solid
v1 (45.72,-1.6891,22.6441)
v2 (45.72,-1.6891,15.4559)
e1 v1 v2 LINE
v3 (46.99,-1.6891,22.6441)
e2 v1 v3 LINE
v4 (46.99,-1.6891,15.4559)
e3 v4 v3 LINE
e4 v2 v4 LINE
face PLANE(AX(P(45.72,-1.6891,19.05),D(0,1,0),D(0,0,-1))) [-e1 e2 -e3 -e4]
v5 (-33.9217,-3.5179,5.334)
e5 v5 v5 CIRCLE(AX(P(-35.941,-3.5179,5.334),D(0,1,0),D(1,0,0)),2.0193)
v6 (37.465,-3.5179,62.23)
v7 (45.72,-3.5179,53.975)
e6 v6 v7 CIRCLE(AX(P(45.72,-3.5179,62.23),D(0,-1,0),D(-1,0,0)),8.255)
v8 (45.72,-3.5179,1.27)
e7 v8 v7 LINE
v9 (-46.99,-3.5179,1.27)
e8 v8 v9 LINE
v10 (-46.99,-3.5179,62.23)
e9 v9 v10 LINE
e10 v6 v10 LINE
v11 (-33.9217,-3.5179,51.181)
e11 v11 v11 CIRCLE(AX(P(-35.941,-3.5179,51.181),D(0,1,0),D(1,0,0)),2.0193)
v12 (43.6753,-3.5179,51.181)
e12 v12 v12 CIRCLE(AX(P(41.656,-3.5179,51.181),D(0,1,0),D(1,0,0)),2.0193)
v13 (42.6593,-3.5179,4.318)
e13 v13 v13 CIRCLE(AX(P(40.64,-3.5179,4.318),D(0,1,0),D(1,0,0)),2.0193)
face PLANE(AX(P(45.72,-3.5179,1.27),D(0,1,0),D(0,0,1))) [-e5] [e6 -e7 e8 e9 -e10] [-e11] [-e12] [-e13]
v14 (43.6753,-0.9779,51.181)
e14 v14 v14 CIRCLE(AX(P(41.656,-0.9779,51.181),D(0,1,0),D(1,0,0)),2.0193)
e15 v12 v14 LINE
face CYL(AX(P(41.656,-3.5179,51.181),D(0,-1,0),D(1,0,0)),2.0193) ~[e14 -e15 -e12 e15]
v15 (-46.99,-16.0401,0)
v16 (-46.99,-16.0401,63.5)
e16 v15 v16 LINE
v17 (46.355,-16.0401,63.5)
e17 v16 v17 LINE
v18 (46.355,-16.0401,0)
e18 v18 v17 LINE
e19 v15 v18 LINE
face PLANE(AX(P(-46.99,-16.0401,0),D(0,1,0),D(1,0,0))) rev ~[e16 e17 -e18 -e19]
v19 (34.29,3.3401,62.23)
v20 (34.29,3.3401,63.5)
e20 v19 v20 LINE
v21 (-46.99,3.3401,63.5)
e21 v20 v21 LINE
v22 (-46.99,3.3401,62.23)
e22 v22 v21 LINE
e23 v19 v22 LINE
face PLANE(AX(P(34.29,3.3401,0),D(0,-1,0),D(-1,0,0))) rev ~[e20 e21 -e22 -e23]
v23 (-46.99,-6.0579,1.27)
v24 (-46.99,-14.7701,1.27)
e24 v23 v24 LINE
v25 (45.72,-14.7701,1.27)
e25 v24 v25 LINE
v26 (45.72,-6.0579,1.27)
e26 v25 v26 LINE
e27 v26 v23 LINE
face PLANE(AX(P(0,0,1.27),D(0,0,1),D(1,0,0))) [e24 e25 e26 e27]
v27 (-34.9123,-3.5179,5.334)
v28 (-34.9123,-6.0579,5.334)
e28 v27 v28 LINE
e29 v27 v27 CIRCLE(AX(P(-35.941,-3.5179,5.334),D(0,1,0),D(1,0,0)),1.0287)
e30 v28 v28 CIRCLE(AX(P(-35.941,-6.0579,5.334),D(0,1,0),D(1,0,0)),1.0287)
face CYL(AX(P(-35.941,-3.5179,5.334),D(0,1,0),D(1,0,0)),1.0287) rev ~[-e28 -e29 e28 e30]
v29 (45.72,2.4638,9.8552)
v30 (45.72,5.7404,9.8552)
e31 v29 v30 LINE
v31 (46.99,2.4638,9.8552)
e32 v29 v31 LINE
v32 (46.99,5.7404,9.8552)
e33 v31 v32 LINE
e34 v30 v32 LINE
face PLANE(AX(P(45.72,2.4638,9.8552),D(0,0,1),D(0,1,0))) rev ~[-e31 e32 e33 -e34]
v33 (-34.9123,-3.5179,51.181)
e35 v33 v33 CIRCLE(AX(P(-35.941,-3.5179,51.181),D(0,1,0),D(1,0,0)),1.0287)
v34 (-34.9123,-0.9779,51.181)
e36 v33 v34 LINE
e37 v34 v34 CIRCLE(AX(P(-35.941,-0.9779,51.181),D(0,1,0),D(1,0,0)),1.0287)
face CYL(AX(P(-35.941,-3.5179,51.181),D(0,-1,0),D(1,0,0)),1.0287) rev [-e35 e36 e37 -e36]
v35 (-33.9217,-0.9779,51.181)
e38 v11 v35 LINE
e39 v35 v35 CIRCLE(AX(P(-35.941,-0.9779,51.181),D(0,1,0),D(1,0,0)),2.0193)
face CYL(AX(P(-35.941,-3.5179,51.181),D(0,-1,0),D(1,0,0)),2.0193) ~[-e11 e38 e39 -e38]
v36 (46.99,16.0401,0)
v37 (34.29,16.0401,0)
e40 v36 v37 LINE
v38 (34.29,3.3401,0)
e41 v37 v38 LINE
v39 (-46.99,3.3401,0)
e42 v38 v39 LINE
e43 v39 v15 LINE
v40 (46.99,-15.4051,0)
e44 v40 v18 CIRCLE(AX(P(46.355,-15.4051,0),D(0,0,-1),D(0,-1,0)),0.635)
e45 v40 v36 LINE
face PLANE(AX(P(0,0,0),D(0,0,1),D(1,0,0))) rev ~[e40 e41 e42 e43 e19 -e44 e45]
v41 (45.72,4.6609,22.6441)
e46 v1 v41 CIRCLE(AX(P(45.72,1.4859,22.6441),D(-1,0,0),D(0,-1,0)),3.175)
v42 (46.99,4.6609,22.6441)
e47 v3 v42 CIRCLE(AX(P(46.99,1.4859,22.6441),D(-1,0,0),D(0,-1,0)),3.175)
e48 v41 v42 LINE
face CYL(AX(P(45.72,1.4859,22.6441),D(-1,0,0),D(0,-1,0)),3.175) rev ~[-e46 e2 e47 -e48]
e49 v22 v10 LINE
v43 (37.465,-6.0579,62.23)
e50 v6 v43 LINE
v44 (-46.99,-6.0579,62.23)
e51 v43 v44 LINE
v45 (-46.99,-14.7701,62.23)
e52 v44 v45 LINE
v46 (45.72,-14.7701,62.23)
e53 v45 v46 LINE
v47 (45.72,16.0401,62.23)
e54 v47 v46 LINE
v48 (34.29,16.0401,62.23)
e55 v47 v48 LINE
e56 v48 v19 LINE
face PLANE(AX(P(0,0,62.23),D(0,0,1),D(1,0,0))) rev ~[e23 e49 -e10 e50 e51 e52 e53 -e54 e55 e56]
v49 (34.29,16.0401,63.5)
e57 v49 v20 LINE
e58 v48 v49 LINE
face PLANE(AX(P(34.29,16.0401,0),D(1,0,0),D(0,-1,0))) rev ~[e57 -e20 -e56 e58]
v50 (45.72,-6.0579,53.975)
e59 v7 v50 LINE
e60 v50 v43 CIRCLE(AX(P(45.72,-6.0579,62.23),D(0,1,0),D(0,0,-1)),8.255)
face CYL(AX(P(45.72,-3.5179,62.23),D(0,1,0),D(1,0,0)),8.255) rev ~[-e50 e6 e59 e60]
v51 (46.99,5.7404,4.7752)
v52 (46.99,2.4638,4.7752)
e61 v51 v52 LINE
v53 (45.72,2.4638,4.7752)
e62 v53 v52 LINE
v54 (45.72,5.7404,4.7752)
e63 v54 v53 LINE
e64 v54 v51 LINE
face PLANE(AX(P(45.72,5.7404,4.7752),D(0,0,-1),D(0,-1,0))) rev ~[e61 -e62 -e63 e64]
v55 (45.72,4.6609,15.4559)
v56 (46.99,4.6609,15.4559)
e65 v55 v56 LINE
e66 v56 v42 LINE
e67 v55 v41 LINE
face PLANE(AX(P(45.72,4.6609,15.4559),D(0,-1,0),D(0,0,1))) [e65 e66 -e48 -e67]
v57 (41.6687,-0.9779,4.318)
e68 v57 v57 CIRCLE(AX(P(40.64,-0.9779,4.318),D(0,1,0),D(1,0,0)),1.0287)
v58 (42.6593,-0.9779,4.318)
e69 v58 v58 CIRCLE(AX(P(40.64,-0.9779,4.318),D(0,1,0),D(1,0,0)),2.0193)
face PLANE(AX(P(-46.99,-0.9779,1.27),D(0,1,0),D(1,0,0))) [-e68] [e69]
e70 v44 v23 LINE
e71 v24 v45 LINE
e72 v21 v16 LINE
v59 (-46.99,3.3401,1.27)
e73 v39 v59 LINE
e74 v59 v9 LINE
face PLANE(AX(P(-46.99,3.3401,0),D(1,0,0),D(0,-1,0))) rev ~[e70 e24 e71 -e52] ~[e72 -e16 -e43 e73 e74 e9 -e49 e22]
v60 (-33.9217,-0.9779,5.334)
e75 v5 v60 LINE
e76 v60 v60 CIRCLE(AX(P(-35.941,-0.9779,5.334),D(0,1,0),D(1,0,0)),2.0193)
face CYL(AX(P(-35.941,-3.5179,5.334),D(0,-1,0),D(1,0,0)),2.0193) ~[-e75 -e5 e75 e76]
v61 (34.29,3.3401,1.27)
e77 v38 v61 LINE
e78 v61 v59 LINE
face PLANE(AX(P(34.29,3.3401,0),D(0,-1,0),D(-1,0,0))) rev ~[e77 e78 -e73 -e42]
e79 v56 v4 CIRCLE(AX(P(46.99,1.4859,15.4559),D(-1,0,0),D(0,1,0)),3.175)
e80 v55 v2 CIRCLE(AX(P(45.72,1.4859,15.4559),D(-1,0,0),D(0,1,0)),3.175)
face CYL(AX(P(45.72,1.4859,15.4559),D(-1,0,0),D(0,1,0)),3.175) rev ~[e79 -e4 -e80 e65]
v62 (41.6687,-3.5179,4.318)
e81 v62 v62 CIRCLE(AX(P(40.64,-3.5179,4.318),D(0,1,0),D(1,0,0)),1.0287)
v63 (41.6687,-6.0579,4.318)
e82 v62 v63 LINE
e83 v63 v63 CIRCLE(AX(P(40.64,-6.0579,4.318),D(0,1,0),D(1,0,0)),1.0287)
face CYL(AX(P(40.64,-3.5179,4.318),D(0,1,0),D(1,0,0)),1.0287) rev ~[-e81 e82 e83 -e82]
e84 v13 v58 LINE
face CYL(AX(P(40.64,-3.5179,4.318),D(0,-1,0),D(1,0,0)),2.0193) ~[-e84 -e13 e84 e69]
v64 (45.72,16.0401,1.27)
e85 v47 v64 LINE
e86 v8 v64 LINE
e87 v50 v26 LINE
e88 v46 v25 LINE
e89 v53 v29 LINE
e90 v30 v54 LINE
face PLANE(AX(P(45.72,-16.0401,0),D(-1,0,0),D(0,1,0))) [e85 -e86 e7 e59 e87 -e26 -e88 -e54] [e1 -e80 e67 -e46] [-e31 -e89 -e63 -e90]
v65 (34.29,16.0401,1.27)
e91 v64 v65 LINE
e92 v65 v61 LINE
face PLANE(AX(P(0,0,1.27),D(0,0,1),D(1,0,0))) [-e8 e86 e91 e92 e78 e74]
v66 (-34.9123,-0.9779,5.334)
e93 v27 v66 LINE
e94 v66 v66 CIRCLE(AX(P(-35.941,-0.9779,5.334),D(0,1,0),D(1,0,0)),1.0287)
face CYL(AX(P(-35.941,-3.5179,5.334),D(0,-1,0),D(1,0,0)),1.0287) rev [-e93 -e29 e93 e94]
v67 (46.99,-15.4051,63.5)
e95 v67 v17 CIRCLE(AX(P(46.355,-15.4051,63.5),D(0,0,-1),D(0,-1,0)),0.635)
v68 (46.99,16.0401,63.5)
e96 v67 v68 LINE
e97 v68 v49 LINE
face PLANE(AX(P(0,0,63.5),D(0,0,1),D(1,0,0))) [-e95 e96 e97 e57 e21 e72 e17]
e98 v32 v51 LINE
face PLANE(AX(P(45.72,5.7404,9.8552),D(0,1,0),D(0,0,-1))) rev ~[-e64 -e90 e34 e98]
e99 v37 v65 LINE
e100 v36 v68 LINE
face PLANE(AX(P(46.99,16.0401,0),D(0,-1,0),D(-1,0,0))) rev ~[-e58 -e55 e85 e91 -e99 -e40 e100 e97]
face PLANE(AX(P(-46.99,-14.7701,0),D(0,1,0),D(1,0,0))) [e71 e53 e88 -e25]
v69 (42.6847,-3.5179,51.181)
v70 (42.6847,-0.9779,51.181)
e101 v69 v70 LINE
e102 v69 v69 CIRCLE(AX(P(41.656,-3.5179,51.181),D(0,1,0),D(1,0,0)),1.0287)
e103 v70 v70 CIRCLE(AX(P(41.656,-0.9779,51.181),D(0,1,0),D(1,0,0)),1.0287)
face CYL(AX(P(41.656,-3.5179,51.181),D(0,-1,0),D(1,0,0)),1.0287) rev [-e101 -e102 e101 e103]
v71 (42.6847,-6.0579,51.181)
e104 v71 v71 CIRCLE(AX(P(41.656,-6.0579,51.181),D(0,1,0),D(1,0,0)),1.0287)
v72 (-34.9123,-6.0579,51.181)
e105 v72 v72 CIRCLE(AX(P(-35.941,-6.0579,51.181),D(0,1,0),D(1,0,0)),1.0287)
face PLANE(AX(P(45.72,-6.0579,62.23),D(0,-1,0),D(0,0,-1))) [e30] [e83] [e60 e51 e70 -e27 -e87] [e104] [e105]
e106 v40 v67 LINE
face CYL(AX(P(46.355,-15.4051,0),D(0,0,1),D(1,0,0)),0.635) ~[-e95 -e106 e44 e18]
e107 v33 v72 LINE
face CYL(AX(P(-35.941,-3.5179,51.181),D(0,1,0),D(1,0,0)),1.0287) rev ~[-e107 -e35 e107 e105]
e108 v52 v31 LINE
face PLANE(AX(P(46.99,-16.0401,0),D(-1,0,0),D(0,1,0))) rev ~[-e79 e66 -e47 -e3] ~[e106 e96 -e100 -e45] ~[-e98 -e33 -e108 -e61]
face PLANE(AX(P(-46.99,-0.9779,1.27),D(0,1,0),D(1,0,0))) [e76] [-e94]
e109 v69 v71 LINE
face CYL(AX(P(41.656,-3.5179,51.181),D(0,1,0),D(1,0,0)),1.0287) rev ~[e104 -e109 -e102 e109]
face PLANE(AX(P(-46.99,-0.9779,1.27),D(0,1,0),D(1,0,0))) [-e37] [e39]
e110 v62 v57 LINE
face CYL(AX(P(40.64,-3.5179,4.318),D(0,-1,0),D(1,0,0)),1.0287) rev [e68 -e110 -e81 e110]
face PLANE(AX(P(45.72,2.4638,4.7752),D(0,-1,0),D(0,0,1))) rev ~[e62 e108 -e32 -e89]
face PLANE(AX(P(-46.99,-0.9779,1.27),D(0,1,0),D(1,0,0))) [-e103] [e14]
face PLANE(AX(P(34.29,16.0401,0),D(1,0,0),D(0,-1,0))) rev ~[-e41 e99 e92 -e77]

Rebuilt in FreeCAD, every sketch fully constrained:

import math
import FreeCAD as App
import Part
import Sketcher

V = App.Vector
Q = App.Units.Quantity


def edges_at(feature, points):
    """Names of the edges that pass closest to the given points."""
    edges = feature.Shape.Edges
    near = lambda p: min(range(len(edges)), key=lambda i: edges[i].distToShape(Part.Vertex(*p))[0])
    return sorted({f"Edge{near(p) + 1}" for p in points})


def faces_at(feature, points):
    """Names of the faces that lie closest to the given points."""
    faces = feature.Shape.Faces
    near = lambda p: min(range(len(faces)), key=lambda i: faces[i].distToShape(Part.Vertex(*p))[0])
    return sorted({f"Face{near(p) + 1}" for p in points})

doc = App.newDocument("Part")
body = doc.addObject("PartDesign::Body", "Body")

sketch1 = body.newObject("Sketcher::SketchObject", "Sketch")
sketch1.AttachmentSupport = (doc.getObject("XY_Plane"), [""])
sketch1.MapMode = "FlatFace"
sketch1.addGeometry(Part.LineSegment(V(-47, 3, 0), V(-47, -16, 0)), False)
sketch1.addGeometry(Part.LineSegment(V(-47, -16, 0), V(47, -16, 0)), False)
sketch1.addGeometry(Part.LineSegment(V(47, -16, 0), V(47, 16, 0)), False)
sketch1.addGeometry(Part.LineSegment(V(47, 16, 0), V(34, 16, 0)), False)
sketch1.addGeometry(Part.LineSegment(V(34, 16, 0), V(34, 3, 0)), False)
sketch1.addGeometry(Part.LineSegment(V(34, 3, 0), V(-47, 3, 0)), False)
sketch1.addConstraint(Sketcher.Constraint("Coincident", 0, 2, 1, 1))
sketch1.addConstraint(Sketcher.Constraint("Coincident", 1, 2, 2, 1))
sketch1.addConstraint(Sketcher.Constraint("Coincident", 2, 2, 3, 1))
sketch1.addConstraint(Sketcher.Constraint("Coincident", 3, 2, 4, 1))
sketch1.addConstraint(Sketcher.Constraint("Coincident", 4, 2, 5, 1))
sketch1.addConstraint(Sketcher.Constraint("Coincident", 5, 2, 0, 1))
sketch1.addConstraint(Sketcher.Constraint("Vertical", 0))
sketch1.addConstraint(Sketcher.Constraint("Horizontal", 1))
sketch1.addConstraint(Sketcher.Constraint("Vertical", 2))
sketch1.addConstraint(Sketcher.Constraint("Horizontal", 3))
sketch1.addConstraint(Sketcher.Constraint("Vertical", 4))
sketch1.addConstraint(Sketcher.Constraint("Horizontal", 5))
sketch1.addConstraint(Sketcher.Constraint("Symmetric", 0, 2, 2, 2, -1, 1))
sketch1.addConstraint(Sketcher.Constraint("Equal", 3, 4))
sketch1.addConstraint(Sketcher.Constraint("DistanceX", 1, 1, 1, 2, Q("3.7 in")))
sketch1.addConstraint(Sketcher.Constraint("DistanceX", 3, 2, 3, 1, Q("0.5 in")))
sketch1.addConstraint(Sketcher.Constraint("DistanceY", 2, 1, 2, 2, Q("1.263 in")))
pad1 = body.newObject("PartDesign::Pad", "Pad")
pad1.Profile = sketch1
pad1.Length = Q("2.5 in")
doc.recompute()

thickness = body.newObject("PartDesign::Thickness", "Thickness")
thickness.Base = (pad1, faces_at(pad1, [
    (-46.99, -3.12, 21.167),
    (7.197, 3.34, 21.167),
    (34.29, 11.807, 42.333),
    (42.757, 16.04, 21.167),
]))
thickness.Value = Q("0.05 in")
thickness.Reversed = True
thickness.Join = "Intersection"

sketch2 = body.newObject("Sketcher::SketchObject", "Sketch001")
sketch2.AttachmentSupport = (doc.getObject("YZ_Plane"), [""])
sketch2.MapMode = "FlatFace"
sketch2.AttachmentOffset = App.Placement(V(0, 0, 1.8 * 25.4), App.Rotation())
sketch2.addGeometry(Part.LineSegment(V(-3.5, 1.3, 0), V(-6.1, 1.3, 0)), False)
sketch2.addGeometry(Part.LineSegment(V(-6.1, 1.3, 0), V(-6.1, 62.2, 0)), False)
sketch2.addGeometry(Part.LineSegment(V(-6.1, 62.2, 0), V(-3.5, 62.2, 0)), False)
sketch2.addGeometry(Part.LineSegment(V(-3.5, 62.2, 0), V(-3.5, 1.3, 0)), False)
sketch2.addConstraint(Sketcher.Constraint("Coincident", 0, 2, 1, 1))
sketch2.addConstraint(Sketcher.Constraint("Coincident", 1, 2, 2, 1))
sketch2.addConstraint(Sketcher.Constraint("Coincident", 2, 2, 3, 1))
sketch2.addConstraint(Sketcher.Constraint("Coincident", 3, 2, 0, 1))
sketch2.addConstraint(Sketcher.Constraint("Horizontal", 0))
sketch2.addConstraint(Sketcher.Constraint("Vertical", 1))
sketch2.addConstraint(Sketcher.Constraint("Horizontal", 2))
sketch2.addConstraint(Sketcher.Constraint("Vertical", 3))
sketch2.addConstraint(Sketcher.Constraint("DistanceX", 0, 2, 0, 1, Q("0.1 in")))
sketch2.addConstraint(Sketcher.Constraint("DistanceY", 1, 1, 1, 2, Q("2.4 in")))
sketch2.addConstraint(Sketcher.Constraint("DistanceY", -1, 1, 0, 2, Q("0.05 in")))
sketch2.addConstraint(Sketcher.Constraint("DistanceX", 0, 2, -1, 1, Q("0.2385 in")))
pad2 = body.newObject("PartDesign::Pad", "Pad001")
pad2.Profile = sketch2
pad2.Length = Q("3.65 in")
pad2.Reversed = True

sketch3 = body.newObject("Sketcher::SketchObject", "Sketch002")
sketch3.AttachmentSupport = (doc.getObject("XZ_Plane"), [""])
sketch3.MapMode = "FlatFace"
sketch3.AttachmentOffset = App.Placement(V(0, 0, 0.1385 * 25.4), App.Rotation())
sketch3.addGeometry(Part.LineSegment(V(37, 62, 0), V(46, 62, 0)), False)
sketch3.addGeometry(Part.LineSegment(V(46, 62, 0), V(46, 54, 0)), False)
sketch3.addGeometry(Part.ArcOfCircle(Part.Circle(V(46, 62, 0), V(0, 0, 1), 8), math.radians(180), math.radians(270)), False)
sketch3.addConstraint(Sketcher.Constraint("Coincident", 0, 2, 1, 1))
sketch3.addConstraint(Sketcher.Constraint("Coincident", 1, 2, 2, 2))
sketch3.addConstraint(Sketcher.Constraint("Coincident", 2, 1, 0, 1))
sketch3.addConstraint(Sketcher.Constraint("Horizontal", 0))
sketch3.addConstraint(Sketcher.Constraint("Vertical", 1))
sketch3.addConstraint(Sketcher.Constraint("Coincident", 0, 2, 2, 3))
sketch3.addConstraint(Sketcher.Constraint("Radius", 2, Q("0.325 in")))
sketch3.addConstraint(Sketcher.Constraint("DistanceX", -1, 1, 2, 3, Q("1.8 in")))
sketch3.addConstraint(Sketcher.Constraint("DistanceY", -1, 1, 2, 3, Q("2.45 in")))
pocket1 = body.newObject("PartDesign::Pocket", "Pocket")
pocket1.Profile = sketch3
pocket1.Length = Q("0.1 in")
pocket1.Reversed = True

sketch4 = body.newObject("Sketcher::SketchObject", "Sketch003")
sketch4.AttachmentSupport = (doc.getObject("XZ_Plane"), [""])
sketch4.MapMode = "FlatFace"
sketch4.AttachmentOffset = App.Placement(V(0, 0, 0.1385 * 25.4), App.Rotation())
sketch4.addGeometry(Part.Circle(V(-35.9, 5.3, 0), V(0, 0, 1), 2), False)
sketch4.addGeometry(Part.Circle(V(-35.9, 5.3, 0), V(0, 0, 1), 1), False)
sketch4.addGeometry(Part.Circle(V(-35.9, 51.2, 0), V(0, 0, 1), 2), False)
sketch4.addGeometry(Part.Circle(V(-35.9, 51.2, 0), V(0, 0, 1), 1), False)
sketch4.addGeometry(Part.Circle(V(40.6, 4.3, 0), V(0, 0, 1), 2), False)
sketch4.addGeometry(Part.Circle(V(40.6, 4.3, 0), V(0, 0, 1), 1), False)
sketch4.addGeometry(Part.Circle(V(41.7, 51.2, 0), V(0, 0, 1), 2), False)
sketch4.addGeometry(Part.Circle(V(41.7, 51.2, 0), V(0, 0, 1), 1), False)
sketch4.addConstraint(Sketcher.Constraint("Coincident", 1, 3, 0, 3))
sketch4.addConstraint(Sketcher.Constraint("Coincident", 3, 3, 2, 3))
sketch4.addConstraint(Sketcher.Constraint("Coincident", 5, 3, 4, 3))
sketch4.addConstraint(Sketcher.Constraint("Coincident", 7, 3, 6, 3))
sketch4.addConstraint(Sketcher.Constraint("Equal", 0, 2))
sketch4.addConstraint(Sketcher.Constraint("Equal", 1, 3))
sketch4.addConstraint(Sketcher.Constraint("Equal", 2, 4))
sketch4.addConstraint(Sketcher.Constraint("Equal", 3, 5))
sketch4.addConstraint(Sketcher.Constraint("Equal", 4, 6))
sketch4.addConstraint(Sketcher.Constraint("Equal", 5, 7))
sketch4.addConstraint(Sketcher.Constraint("Horizontal", 3, 3, 6, 3))
sketch4.addConstraint(Sketcher.Constraint("Vertical", 1, 3, 2, 3))
sketch4.addConstraint(Sketcher.Constraint("Diameter", 0, Q("0.159 in")))
sketch4.addConstraint(Sketcher.Constraint("Diameter", 1, Q("0.081 in")))
sketch4.addConstraint(Sketcher.Constraint("DistanceX", -1, 1, 4, 3, Q("1.6 in")))
sketch4.addConstraint(Sketcher.Constraint("DistanceY", -1, 1, 0, 3, Q("0.21 in")))
sketch4.addConstraint(Sketcher.Constraint("DistanceY", -1, 1, 4, 3, Q("0.17 in")))
sketch4.addConstraint(Sketcher.Constraint("DistanceX", -1, 1, 6, 3, Q("1.64 in")))
sketch4.addConstraint(Sketcher.Constraint("DistanceX", 0, 3, -1, 1, Q("1.415 in")))
sketch4.addConstraint(Sketcher.Constraint("DistanceY", -1, 1, 2, 3, Q("2.015 in")))
pad3 = body.newObject("PartDesign::Pad", "Pad002")
pad3.Profile = sketch4
pad3.Length = Q("0.1 in")
pad3.Reversed = True

sketch5 = body.newObject("Sketcher::SketchObject", "Sketch004")
sketch5.AttachmentSupport = (doc.getObject("XZ_Plane"), [""])
sketch5.MapMode = "FlatFace"
sketch5.AttachmentOffset = App.Placement(V(0, 0, 0.1385 * 25.4), App.Rotation())
sketch5.addGeometry(Part.Circle(V(-35.9, 5.3, 0), V(0, 0, 1), 1), False)
sketch5.addGeometry(Part.Circle(V(40.6, 4.3, 0), V(0, 0, 1), 1), False)
sketch5.addGeometry(Part.Circle(V(41.7, 51.2, 0), V(0, 0, 1), 1), False)
sketch5.addGeometry(Part.Circle(V(-35.9, 51.2, 0), V(0, 0, 1), 1), False)
sketch5.addConstraint(Sketcher.Constraint("Equal", 0, 1))
sketch5.addConstraint(Sketcher.Constraint("Equal", 1, 2))
sketch5.addConstraint(Sketcher.Constraint("Equal", 2, 3))
sketch5.addConstraint(Sketcher.Constraint("Horizontal", 2, 3, 3, 3))
sketch5.addConstraint(Sketcher.Constraint("Vertical", 0, 3, 3, 3))
sketch5.addConstraint(Sketcher.Constraint("Diameter", 0, Q("0.081 in")))
sketch5.addConstraint(Sketcher.Constraint("DistanceX", -1, 1, 1, 3, Q("1.6 in")))
sketch5.addConstraint(Sketcher.Constraint("DistanceY", -1, 1, 0, 3, Q("0.21 in")))
sketch5.addConstraint(Sketcher.Constraint("DistanceY", -1, 1, 1, 3, Q("0.17 in")))
sketch5.addConstraint(Sketcher.Constraint("DistanceX", -1, 1, 2, 3, Q("1.64 in")))
sketch5.addConstraint(Sketcher.Constraint("DistanceX", 0, 3, -1, 1, Q("1.415 in")))
sketch5.addConstraint(Sketcher.Constraint("DistanceY", -1, 1, 2, 3, Q("2.015 in")))
pocket2 = body.newObject("PartDesign::Pocket", "Pocket001")
pocket2.Profile = sketch5
pocket2.Length = Q("0.1 in")
pocket2.Reversed = True

sketch6 = body.newObject("Sketcher::SketchObject", "Sketch005")
sketch6.AttachmentSupport = (doc.getObject("YZ_Plane"), [""])
sketch6.MapMode = "FlatFace"
sketch6.AttachmentOffset = App.Placement(V(0, 0, 1.8 * 25.4), App.Rotation())
sketch6.addGeometry(Part.LineSegment(V(5.7, 4.8, 0), V(2.5, 4.8, 0)), False)
sketch6.addGeometry(Part.LineSegment(V(2.5, 4.8, 0), V(2.5, 9.9, 0)), False)
sketch6.addGeometry(Part.LineSegment(V(2.5, 9.9, 0), V(5.7, 9.9, 0)), False)
sketch6.addGeometry(Part.LineSegment(V(5.7, 9.9, 0), V(5.7, 4.8, 0)), False)
sketch6.addGeometry(Part.LineSegment(V(-1.7, 15.5, 0), V(-1.7, 22.6, 0)), False)
sketch6.addGeometry(Part.ArcOfCircle(Part.Circle(V(1.5, 22.6, 0), V(0, 0, 1), 3.2), math.radians(0), math.radians(180)), False)
sketch6.addGeometry(Part.LineSegment(V(4.7, 22.6, 0), V(4.7, 15.5, 0)), False)
sketch6.addGeometry(Part.ArcOfCircle(Part.Circle(V(1.5, 15.5, 0), V(0, 0, 1), 3.2), math.radians(180), math.radians(360)), False)
sketch6.addConstraint(Sketcher.Constraint("Coincident", 0, 2, 1, 1))
sketch6.addConstraint(Sketcher.Constraint("Coincident", 1, 2, 2, 1))
sketch6.addConstraint(Sketcher.Constraint("Coincident", 2, 2, 3, 1))
sketch6.addConstraint(Sketcher.Constraint("Coincident", 3, 2, 0, 1))
sketch6.addConstraint(Sketcher.Constraint("Tangent", 4, 2, 5, 2))
sketch6.addConstraint(Sketcher.Constraint("Tangent", 5, 1, 6, 1))
sketch6.addConstraint(Sketcher.Constraint("Tangent", 6, 2, 7, 2))
sketch6.addConstraint(Sketcher.Constraint("Tangent", 7, 1, 4, 1))
sketch6.addConstraint(Sketcher.Constraint("Horizontal", 0))
sketch6.addConstraint(Sketcher.Constraint("Vertical", 1))
sketch6.addConstraint(Sketcher.Constraint("Horizontal", 2))
sketch6.addConstraint(Sketcher.Constraint("Vertical", 3))
sketch6.addConstraint(Sketcher.Constraint("Vertical", 4))
sketch6.addConstraint(Sketcher.Constraint("Vertical", 6))
sketch6.addConstraint(Sketcher.Constraint("DistanceY", 1, 1, 1, 2, Q("0.2 in")))
sketch6.addConstraint(Sketcher.Constraint("DistanceX", 0, 2, 0, 1, Q("0.129 in")))
sketch6.addConstraint(Sketcher.Constraint("DistanceX", -1, 1, 0, 2, Q("0.097 in")))
sketch6.addConstraint(Sketcher.Constraint("Radius", 5, Q("0.125 in")))
sketch6.addConstraint(Sketcher.Constraint("DistanceY", 4, 1, 4, 2, Q("0.283 in")))
sketch6.addConstraint(Sketcher.Constraint("DistanceY", -1, 1, 0, 2, Q("0.188 in")))
sketch6.addConstraint(Sketcher.Constraint("DistanceX", -1, 1, 5, 3, Q("0.0585 in")))
sketch6.addConstraint(Sketcher.Constraint("DistanceY", -1, 1, 5, 3, Q("0.8915 in")))
pocket3 = body.newObject("PartDesign::Pocket", "Pocket002")
pocket3.Profile = sketch6
pocket3.Length = Q("0.05 in")
pocket3.Reversed = True
doc.recompute()

fillet = body.newObject("PartDesign::Fillet", "Fillet")
fillet.Base = (pocket3, edges_at(pocket3, [(46.99, -16.04, 31.75)]))
fillet.Radius = Q("0.025 in")

doc.recompute()
